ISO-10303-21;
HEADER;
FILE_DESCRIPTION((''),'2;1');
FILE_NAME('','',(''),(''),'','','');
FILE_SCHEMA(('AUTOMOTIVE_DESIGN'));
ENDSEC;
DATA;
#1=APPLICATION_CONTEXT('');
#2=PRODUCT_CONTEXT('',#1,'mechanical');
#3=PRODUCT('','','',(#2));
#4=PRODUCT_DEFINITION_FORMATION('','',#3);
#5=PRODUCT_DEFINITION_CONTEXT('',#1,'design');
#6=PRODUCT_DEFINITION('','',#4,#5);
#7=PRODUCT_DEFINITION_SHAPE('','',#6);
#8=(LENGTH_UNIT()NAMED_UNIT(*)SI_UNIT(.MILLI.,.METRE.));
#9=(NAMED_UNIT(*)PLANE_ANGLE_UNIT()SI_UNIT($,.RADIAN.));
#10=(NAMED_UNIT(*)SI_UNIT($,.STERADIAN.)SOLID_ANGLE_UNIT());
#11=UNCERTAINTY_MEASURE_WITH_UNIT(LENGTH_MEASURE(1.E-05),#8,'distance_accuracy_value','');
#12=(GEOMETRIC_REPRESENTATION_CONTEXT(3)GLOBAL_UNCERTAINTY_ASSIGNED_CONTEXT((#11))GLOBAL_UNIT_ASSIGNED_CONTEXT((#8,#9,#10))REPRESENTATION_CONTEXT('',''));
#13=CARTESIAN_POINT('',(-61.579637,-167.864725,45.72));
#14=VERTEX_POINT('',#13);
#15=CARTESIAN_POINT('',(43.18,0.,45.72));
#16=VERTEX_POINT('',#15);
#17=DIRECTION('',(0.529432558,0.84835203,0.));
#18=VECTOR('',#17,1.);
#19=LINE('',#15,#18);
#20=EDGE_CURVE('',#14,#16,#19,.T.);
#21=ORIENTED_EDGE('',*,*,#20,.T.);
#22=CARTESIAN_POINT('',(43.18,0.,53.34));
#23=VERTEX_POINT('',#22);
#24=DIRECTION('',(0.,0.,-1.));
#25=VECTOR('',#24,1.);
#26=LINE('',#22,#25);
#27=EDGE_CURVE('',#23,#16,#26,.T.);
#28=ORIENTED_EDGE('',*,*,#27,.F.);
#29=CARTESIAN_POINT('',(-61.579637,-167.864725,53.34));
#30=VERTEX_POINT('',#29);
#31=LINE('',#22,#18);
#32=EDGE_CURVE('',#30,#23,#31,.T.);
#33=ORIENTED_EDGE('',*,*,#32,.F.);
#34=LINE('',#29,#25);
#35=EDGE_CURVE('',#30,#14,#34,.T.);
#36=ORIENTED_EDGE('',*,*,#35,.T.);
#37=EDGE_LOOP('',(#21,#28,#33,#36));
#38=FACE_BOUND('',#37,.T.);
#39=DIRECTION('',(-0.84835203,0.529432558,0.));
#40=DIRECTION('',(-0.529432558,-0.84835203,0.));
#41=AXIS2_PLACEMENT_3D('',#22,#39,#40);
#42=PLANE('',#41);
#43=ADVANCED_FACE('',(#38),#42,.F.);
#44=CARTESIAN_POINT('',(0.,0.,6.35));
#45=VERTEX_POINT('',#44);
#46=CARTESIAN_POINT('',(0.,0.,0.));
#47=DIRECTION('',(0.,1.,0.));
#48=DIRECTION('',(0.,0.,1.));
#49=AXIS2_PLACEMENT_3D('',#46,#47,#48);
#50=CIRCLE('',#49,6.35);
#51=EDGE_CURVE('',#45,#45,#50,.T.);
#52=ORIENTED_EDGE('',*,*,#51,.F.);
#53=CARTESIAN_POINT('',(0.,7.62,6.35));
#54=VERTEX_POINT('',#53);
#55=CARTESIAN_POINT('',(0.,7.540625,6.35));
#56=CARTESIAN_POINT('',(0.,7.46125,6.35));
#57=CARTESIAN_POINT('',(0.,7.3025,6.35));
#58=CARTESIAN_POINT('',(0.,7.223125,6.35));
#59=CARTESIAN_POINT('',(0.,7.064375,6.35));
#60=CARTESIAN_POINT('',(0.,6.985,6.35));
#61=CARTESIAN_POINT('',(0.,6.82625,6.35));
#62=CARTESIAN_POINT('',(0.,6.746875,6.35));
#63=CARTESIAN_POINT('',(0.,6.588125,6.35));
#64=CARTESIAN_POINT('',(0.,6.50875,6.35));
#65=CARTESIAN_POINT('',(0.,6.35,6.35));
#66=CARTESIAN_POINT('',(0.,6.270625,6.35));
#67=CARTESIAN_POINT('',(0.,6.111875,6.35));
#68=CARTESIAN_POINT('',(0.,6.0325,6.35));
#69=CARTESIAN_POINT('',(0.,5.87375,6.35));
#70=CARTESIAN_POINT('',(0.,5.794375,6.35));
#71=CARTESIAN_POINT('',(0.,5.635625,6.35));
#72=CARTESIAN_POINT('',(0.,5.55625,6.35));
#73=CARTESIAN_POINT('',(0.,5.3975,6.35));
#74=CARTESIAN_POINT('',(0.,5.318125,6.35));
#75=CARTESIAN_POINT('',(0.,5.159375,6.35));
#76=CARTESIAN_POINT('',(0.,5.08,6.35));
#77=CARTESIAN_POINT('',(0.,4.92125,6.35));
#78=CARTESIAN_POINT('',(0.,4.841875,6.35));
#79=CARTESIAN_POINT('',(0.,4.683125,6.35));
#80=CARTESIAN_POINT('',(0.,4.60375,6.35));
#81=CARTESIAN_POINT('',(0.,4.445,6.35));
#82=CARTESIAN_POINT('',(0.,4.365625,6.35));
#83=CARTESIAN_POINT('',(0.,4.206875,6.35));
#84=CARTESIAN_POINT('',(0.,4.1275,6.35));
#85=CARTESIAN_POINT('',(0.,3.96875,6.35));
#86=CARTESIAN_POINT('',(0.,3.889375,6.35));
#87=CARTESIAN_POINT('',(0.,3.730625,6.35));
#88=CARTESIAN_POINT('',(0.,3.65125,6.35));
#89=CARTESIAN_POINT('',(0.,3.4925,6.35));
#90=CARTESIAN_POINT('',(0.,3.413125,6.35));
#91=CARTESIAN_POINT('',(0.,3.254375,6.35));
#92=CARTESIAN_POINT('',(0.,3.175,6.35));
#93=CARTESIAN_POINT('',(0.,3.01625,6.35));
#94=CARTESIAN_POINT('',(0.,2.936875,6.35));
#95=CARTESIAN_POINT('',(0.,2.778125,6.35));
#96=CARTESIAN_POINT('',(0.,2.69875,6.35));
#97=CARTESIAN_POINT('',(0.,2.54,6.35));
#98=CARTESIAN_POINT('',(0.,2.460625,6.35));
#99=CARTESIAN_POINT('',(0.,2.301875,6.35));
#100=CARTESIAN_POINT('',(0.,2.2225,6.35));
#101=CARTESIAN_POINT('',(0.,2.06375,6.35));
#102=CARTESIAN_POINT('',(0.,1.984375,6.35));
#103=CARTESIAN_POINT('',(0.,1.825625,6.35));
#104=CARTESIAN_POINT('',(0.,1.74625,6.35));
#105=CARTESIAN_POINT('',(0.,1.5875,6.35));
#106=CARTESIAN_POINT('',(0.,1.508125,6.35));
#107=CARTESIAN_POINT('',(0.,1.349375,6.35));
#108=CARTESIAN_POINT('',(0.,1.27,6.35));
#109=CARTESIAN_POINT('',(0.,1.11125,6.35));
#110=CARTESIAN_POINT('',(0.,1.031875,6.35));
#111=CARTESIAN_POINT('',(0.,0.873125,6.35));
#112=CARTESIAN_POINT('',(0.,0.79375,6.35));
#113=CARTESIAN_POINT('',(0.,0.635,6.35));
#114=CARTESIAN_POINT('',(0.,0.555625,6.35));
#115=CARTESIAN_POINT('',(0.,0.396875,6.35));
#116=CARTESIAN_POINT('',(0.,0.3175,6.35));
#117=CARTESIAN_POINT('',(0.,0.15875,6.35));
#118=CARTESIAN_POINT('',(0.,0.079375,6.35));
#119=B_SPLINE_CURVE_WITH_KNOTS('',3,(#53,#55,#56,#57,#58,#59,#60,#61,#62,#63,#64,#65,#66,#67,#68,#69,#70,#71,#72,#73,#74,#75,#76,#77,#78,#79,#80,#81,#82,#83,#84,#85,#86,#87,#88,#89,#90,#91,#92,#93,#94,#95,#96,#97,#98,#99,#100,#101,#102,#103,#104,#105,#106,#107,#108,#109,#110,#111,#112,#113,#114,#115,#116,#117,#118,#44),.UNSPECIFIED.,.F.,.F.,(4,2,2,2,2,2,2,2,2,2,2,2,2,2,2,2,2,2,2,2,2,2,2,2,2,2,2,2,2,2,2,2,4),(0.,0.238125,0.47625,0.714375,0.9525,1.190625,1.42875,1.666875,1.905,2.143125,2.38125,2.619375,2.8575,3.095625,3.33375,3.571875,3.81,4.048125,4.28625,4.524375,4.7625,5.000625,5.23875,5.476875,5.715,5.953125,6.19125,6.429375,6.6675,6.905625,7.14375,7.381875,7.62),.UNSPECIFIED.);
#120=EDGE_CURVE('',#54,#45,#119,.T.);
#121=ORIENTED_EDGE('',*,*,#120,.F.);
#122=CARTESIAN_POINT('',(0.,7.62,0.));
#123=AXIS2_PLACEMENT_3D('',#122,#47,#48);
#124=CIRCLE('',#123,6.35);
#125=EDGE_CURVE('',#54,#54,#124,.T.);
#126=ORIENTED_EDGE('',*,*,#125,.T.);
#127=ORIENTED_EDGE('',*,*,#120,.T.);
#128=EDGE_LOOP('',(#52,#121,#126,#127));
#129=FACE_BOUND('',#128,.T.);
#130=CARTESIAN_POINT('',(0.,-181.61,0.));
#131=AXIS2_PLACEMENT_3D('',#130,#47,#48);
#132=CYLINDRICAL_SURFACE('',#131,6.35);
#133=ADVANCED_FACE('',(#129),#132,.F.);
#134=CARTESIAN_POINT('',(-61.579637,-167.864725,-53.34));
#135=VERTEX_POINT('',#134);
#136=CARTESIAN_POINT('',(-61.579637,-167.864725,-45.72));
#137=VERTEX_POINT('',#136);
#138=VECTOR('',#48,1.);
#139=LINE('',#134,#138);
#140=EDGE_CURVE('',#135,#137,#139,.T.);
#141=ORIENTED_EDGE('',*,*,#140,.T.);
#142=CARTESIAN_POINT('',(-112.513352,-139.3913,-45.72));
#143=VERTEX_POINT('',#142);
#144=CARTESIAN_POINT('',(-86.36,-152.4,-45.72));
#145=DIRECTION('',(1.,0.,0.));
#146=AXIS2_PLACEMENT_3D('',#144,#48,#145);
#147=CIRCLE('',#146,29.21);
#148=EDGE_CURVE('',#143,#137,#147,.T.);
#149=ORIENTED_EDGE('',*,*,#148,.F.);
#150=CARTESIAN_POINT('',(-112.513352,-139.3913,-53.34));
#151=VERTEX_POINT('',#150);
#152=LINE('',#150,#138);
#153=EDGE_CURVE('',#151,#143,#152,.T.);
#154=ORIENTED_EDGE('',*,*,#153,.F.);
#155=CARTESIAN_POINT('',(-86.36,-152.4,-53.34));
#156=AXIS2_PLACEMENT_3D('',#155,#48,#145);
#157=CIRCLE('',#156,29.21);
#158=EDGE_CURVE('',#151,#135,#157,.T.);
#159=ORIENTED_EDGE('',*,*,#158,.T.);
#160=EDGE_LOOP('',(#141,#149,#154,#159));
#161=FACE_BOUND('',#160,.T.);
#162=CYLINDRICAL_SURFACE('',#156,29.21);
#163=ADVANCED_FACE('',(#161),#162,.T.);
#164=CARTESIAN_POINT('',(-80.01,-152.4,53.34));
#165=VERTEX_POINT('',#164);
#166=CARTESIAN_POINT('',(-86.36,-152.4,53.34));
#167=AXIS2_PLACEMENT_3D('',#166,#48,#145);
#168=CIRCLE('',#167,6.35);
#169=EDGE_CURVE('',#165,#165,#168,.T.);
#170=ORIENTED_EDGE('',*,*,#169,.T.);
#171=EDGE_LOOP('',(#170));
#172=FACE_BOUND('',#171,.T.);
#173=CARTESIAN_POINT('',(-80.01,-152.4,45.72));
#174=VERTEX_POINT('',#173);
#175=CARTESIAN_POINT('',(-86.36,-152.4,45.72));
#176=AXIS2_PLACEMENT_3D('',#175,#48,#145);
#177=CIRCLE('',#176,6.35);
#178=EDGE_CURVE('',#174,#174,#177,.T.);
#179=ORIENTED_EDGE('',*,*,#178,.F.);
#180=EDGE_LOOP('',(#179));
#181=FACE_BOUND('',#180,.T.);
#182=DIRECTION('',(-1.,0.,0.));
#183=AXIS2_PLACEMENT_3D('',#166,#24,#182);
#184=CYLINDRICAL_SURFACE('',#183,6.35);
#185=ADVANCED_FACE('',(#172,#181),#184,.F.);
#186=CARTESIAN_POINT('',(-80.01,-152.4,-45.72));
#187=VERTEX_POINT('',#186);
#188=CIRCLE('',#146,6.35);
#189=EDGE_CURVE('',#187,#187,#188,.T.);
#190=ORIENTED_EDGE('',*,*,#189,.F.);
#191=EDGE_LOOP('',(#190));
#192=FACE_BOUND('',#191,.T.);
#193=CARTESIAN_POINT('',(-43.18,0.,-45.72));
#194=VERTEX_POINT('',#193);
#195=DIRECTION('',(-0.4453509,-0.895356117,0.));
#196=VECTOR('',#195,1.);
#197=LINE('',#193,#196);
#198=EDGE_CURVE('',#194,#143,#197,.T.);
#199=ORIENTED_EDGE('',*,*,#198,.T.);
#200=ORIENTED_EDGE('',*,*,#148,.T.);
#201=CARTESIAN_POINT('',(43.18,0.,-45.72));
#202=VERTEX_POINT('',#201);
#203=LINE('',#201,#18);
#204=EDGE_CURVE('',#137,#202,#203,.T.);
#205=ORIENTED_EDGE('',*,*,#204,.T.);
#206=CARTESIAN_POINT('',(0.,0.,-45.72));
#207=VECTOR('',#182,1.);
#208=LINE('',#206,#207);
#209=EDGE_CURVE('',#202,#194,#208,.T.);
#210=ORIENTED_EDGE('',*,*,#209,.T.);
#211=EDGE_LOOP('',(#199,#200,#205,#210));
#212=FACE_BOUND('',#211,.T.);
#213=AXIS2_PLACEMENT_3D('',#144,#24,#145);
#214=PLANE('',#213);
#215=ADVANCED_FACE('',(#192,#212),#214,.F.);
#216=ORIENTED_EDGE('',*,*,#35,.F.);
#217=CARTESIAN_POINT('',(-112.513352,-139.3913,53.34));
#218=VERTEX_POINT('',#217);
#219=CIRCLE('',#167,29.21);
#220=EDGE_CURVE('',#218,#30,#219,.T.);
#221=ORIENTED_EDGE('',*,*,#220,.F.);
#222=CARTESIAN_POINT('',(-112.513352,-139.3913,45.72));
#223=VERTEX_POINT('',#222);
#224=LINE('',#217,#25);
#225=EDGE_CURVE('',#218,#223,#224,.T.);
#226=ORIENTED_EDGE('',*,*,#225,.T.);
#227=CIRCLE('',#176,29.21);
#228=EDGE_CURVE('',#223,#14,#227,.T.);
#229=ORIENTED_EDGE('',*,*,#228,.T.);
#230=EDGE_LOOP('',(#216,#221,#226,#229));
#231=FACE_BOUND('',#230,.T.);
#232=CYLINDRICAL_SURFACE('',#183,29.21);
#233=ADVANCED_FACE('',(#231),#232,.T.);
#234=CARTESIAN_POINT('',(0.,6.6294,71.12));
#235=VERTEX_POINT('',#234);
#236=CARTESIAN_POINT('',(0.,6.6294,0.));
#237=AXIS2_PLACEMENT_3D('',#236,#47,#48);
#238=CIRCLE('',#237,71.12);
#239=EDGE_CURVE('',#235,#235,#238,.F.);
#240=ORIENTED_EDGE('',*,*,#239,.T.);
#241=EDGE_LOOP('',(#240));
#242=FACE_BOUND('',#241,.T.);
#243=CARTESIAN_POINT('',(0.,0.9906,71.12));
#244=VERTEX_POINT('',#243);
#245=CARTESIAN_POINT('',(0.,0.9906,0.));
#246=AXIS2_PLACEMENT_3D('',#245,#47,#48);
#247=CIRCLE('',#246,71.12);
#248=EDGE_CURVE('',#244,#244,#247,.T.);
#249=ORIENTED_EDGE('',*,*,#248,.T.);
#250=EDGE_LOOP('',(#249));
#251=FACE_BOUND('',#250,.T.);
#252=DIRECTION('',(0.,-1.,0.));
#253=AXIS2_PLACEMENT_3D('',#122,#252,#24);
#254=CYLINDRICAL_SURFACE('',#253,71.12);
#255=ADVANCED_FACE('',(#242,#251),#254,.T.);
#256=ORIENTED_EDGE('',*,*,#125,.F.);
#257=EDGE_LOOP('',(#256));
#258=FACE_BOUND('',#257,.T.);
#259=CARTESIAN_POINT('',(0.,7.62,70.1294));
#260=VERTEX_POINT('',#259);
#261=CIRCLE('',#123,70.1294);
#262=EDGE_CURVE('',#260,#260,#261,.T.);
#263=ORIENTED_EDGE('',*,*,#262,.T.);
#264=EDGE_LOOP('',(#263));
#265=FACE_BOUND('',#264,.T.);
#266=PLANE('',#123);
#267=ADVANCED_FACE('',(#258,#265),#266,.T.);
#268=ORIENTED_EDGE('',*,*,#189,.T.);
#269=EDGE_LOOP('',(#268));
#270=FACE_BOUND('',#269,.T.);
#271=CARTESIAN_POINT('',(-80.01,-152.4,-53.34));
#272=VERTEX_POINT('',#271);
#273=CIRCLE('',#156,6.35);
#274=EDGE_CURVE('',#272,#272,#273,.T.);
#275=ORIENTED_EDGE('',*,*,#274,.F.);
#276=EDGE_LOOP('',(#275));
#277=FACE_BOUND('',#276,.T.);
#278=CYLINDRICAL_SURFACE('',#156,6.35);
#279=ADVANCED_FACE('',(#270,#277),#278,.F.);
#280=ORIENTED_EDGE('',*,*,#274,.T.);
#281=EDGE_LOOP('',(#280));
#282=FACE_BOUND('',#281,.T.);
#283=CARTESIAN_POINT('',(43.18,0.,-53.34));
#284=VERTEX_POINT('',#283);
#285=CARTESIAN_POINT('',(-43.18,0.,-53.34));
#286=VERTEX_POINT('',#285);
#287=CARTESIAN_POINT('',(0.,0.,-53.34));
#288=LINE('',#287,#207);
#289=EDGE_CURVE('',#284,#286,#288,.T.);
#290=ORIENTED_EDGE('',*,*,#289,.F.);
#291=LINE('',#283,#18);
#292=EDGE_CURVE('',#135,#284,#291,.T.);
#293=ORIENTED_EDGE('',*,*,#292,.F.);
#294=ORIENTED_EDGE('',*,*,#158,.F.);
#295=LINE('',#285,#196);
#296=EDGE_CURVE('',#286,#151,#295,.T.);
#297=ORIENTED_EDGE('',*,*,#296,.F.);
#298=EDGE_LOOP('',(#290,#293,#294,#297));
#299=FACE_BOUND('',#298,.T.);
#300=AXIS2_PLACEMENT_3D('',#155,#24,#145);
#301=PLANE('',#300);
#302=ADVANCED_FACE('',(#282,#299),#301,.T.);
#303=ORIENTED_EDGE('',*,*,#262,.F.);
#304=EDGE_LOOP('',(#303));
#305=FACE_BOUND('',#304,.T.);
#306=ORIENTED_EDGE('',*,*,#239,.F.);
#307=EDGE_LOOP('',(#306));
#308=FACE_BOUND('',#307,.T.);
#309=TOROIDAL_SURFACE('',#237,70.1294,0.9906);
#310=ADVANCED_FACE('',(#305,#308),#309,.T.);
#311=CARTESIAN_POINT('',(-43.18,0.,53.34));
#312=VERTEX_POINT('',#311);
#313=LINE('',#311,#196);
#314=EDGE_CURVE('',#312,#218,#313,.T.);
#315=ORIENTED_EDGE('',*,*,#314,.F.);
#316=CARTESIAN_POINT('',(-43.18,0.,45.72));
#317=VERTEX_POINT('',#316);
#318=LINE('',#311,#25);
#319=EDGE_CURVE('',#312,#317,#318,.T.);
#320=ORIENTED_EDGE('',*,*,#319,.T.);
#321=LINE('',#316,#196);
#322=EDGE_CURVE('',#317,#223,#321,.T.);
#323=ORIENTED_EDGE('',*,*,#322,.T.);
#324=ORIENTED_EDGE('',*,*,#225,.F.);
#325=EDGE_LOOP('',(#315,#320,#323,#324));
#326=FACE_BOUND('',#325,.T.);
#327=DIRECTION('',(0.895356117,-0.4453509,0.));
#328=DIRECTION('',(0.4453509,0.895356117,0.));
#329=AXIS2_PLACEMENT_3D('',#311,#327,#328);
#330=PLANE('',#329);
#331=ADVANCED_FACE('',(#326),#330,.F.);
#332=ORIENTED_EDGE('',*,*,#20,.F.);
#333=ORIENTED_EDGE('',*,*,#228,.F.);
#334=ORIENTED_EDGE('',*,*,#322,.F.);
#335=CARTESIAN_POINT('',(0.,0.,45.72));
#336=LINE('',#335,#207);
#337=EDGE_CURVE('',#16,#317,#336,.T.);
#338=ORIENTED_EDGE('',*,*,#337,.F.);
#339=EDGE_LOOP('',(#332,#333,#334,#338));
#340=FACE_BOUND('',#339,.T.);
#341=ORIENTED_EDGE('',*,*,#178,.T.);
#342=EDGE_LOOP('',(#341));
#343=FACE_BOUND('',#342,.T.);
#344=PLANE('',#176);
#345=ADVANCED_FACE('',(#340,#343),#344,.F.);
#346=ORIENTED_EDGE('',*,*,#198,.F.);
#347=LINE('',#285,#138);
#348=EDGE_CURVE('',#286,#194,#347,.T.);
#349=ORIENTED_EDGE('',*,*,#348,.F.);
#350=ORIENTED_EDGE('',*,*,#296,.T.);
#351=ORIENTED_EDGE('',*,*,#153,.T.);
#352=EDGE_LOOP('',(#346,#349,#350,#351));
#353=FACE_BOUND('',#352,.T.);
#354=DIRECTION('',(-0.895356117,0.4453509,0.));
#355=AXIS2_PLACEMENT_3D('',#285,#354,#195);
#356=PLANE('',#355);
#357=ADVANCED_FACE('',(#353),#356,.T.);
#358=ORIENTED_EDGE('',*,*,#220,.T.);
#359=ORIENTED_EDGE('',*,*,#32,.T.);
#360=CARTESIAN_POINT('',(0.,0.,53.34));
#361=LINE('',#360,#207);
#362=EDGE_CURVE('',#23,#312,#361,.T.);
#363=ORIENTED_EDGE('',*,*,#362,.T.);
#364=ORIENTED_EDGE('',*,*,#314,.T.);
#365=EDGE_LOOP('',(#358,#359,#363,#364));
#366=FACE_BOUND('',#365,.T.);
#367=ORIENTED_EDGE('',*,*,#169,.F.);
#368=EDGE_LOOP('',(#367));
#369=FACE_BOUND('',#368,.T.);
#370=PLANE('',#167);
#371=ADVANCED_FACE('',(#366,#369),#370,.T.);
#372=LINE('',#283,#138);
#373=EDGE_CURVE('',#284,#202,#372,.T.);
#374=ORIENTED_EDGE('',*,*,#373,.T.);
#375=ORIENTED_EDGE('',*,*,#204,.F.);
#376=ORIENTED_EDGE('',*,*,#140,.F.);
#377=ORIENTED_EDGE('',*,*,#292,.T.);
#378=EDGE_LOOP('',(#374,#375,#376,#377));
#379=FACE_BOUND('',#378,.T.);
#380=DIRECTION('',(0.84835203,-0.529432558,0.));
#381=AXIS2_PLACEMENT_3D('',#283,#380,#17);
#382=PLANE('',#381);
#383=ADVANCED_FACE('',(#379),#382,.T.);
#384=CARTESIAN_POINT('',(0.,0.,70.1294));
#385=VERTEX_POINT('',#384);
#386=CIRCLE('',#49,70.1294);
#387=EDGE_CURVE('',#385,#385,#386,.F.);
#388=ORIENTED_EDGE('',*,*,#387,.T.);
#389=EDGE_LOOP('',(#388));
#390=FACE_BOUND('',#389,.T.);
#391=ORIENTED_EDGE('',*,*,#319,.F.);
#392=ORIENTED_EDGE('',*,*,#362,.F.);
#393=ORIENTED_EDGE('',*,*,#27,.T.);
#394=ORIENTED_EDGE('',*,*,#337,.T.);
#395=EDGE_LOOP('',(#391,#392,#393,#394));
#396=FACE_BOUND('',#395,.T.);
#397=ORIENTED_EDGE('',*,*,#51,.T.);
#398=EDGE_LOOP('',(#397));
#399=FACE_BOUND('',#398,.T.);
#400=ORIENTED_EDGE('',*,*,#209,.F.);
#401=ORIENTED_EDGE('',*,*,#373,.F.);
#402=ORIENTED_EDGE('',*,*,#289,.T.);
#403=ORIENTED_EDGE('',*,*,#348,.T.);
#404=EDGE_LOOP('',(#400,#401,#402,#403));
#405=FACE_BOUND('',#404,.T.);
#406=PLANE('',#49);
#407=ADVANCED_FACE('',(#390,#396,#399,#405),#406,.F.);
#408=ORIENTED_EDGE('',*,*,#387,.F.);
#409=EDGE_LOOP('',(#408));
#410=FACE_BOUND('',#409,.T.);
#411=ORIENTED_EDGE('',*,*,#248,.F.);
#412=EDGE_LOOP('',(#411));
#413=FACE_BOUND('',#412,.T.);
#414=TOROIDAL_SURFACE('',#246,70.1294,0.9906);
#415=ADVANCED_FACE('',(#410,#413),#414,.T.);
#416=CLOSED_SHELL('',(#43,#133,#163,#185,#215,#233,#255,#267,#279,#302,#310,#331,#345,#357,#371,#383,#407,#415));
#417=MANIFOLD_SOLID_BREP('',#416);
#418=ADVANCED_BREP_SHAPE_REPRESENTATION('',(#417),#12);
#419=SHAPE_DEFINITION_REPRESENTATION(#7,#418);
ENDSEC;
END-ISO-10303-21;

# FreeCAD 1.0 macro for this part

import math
import FreeCAD as App
import Part
import Sketcher

V = App.Vector
Q = App.Units.Quantity


def edges_at(feature, points):
    """Names of the edges that pass closest to the given points."""
    edges = feature.Shape.Edges
    near = lambda p: min(range(len(edges)), key=lambda i: edges[i].distToShape(Part.Vertex(*p))[0])
    return sorted({f"Edge{near(p) + 1}" for p in points})

doc = App.newDocument("Part")
body = doc.addObject("PartDesign::Body", "Body")

sketch1 = body.newObject("Sketcher::SketchObject", "Sketch")
sketch1.AttachmentSupport = (doc.getObject("XZ_Plane"), [""])
sketch1.MapMode = "FlatFace"
sketch1.addGeometry(Part.Circle(V(0, 0, 0), V(0, 0, 1), 71.12), False)
sketch1.addConstraint([
    Sketcher.Constraint("Coincident", 0, 3, -1, 1),
    Sketcher.Constraint("Diameter", 0, Q("5.6 in")),
])
pad1 = body.newObject("PartDesign::Pad", "Pad")
pad1.Profile = sketch1
pad1.Length = Q("0.3 in")
pad1.Reversed = True
doc.recompute()

fillet = body.newObject("PartDesign::Fillet", "Fillet")
fillet.Base = (pad1, edges_at(pad1, [(0, 0, -71.12), (0, 7.62, -71.12)]))
fillet.Radius = Q("0.039 in")

sketch2 = body.newObject("Sketcher::SketchObject", "Sketch001")
sketch2.AttachmentSupport = (doc.getObject("XY_Plane"), [""])
sketch2.MapMode = "FlatFace"
sketch2.AttachmentOffset = App.Placement(V(0, 0, 1.8 * 25.4), App.Rotation())
sketch2.addGeometry([
    Part.LineSegment(V(-61.579637, -167.864725, 0), V(43.18, 0, 0)),
    Part.LineSegment(V(43.18, 0, 0), V(-43.18, 0, 0)),
    Part.LineSegment(V(-43.18, 0, 0), V(-112.513352, -139.3913, 0)),
    Part.ArcOfCircle(Part.Circle(V(-86.36, -152.4, 0), V(0, 0, 1), 29.21), math.radians(153.554209), math.radians(328.032877)),
    Part.Circle(V(-86.36, -152.4, 0), V(0, 0, 1), 6.35),
], False)
sketch2.addConstraint([
    Sketcher.Constraint("Coincident", 0, 2, 1, 1),
    Sketcher.Constraint("Coincident", 1, 2, 2, 1),
    Sketcher.Constraint("Tangent", 2, 2, 3, 1),
    Sketcher.Constraint("Tangent", 3, 2, 0, 1),
    Sketcher.Constraint("Horizontal", 1),
    Sketcher.Constraint("Coincident", 4, 3, 3, 3),
    Sketcher.Constraint("Symmetric", 0, 2, 1, 2, -1, 1),
    Sketcher.Constraint("Diameter", 4, Q("0.5 in")),
    Sketcher.Constraint("Radius", 3, Q("1.15 in")),
    Sketcher.Constraint("DistanceX", 1, 2, 1, 1, Q("3.4 in")),
    Sketcher.Constraint("DistanceY", 3, 3, -1, 1, Q("6 in")),
    Sketcher.Constraint("DistanceX", 3, 3, -1, 1, Q("3.4 in")),
])
pad2 = body.newObject("PartDesign::Pad", "Pad001")
pad2.Profile = sketch2
pad2.Length = Q("0.3 in")
doc.recompute()

mirrored = body.newObject("PartDesign::Mirrored", "Mirrored")
mirrored.Originals = [pad2]
mirrored.MirrorPlane = (doc.getObject("XY_Plane"), [""])
body.Tip = mirrored

sketch3 = body.newObject("Sketcher::SketchObject", "Sketch002")
sketch3.AttachmentSupport = (doc.getObject("XZ_Plane"), [""])
sketch3.MapMode = "FlatFace"
sketch3.AttachmentOffset = App.Placement(V(0, 0, -0.3 * 25.4), App.Rotation())
sketch3.addGeometry(Part.Circle(V(0, 0, 0), V(0, 0, 1), 6.35), False)
sketch3.addConstraint([
    Sketcher.Constraint("Coincident", 0, 3, -1, 1),
    Sketcher.Constraint("Diameter", 0, Q("0.5 in")),
])
pocket1 = body.newObject("PartDesign::Pocket", "Pocket")
pocket1.Profile = sketch3
pocket1.Type = "ThroughAll"
pocket1.Reversed = True

doc.recompute()
